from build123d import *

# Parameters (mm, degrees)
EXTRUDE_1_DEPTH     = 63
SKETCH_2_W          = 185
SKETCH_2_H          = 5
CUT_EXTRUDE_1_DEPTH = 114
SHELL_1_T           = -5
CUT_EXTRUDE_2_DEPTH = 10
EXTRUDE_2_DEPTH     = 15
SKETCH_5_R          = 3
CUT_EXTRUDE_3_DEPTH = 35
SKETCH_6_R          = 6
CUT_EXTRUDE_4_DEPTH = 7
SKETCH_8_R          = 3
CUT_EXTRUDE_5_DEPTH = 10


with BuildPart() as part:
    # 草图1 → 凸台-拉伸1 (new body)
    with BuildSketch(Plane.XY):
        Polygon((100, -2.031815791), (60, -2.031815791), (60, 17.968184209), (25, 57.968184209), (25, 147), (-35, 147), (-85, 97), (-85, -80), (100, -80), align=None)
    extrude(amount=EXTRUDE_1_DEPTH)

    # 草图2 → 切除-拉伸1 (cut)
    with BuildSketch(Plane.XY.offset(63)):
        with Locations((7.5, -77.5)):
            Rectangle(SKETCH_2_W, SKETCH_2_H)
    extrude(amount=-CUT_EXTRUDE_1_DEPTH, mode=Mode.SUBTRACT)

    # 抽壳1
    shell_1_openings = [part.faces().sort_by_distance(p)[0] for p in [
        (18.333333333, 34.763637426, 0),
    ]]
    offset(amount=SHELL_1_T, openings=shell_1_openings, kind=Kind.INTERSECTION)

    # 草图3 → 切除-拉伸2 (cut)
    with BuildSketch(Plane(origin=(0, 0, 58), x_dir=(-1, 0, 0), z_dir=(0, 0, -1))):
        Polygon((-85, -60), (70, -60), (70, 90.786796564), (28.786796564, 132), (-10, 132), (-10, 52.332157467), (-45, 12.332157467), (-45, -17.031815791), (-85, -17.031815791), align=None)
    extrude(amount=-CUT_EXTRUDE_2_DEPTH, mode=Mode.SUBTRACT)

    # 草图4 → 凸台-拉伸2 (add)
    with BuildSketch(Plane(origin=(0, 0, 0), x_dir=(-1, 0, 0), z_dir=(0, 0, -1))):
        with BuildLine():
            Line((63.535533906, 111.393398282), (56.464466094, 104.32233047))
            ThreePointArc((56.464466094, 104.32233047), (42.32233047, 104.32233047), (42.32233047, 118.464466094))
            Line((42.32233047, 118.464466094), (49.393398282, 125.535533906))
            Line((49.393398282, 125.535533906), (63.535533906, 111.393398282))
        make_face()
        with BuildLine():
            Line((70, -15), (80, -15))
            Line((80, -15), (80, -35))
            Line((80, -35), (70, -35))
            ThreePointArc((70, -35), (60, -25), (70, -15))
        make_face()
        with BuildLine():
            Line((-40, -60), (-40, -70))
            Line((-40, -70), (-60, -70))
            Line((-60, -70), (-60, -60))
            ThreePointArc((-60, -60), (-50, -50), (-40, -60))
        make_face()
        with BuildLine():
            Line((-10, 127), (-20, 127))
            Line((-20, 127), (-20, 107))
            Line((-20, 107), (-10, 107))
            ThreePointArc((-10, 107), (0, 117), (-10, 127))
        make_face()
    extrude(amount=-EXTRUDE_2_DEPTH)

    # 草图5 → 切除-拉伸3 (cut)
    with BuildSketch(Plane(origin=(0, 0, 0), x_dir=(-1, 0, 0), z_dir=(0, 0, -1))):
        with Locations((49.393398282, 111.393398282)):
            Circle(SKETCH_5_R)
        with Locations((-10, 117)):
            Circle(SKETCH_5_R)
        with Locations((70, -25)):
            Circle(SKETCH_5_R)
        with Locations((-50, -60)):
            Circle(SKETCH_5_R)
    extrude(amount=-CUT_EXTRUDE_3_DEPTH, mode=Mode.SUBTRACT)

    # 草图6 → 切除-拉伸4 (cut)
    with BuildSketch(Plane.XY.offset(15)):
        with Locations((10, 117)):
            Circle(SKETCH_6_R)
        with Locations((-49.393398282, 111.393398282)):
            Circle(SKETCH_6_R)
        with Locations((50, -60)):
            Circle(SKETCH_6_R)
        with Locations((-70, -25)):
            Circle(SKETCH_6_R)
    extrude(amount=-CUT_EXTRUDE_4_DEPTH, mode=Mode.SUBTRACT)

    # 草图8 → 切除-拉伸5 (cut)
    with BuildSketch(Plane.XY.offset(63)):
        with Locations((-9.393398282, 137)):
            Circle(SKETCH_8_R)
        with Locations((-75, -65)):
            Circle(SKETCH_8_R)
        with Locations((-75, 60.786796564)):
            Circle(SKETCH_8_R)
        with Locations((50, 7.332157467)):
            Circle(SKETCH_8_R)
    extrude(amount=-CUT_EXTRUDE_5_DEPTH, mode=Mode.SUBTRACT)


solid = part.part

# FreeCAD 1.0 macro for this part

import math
import FreeCAD as App
import Part
import Sketcher

V = App.Vector
Q = App.Units.Quantity


def faces_at(feature, points):
    """Names of the faces that lie closest to the given points."""
    faces = feature.Shape.Faces
    near = lambda p: min(range(len(faces)), key=lambda i: faces[i].distToShape(Part.Vertex(*p))[0])
    return sorted({f"Face{near(p) + 1}" for p in points})


def add_polygon(sketch, points):
    """Adds a closed chain of lines whose ends are joined by coincident constraints."""
    first, n = sketch.GeometryCount, len(points)
    for a, b in zip(points, points[1:] + points[:1]):
        sketch.addGeometry(Part.LineSegment(App.Vector(*a, 0), App.Vector(*b, 0)), False)
    for i in range(n):
        sketch.addConstraint(Sketcher.Constraint("Coincident", first + i, 2, first + (i + 1) % n, 1))

doc = App.newDocument("Part")
body = doc.addObject("PartDesign::Body", "Body")

sketch1 = doc.addObject("Sketcher::SketchObject", "Sketch")
body.addObject(sketch1)
sketch1.AttachmentSupport = (doc.XY_Plane, [""])
sketch1.MapMode = "FlatFace"
add_polygon(sketch1, [(100, -2), (60, -2), (60, 18), (25, 58), (25, 147), (-35, 147), (-85, 97), (-85, -80), (100, -80)])
sketch1.addConstraint([
    Sketcher.Constraint("Horizontal", 0),
    Sketcher.Constraint("Vertical", 1),
    Sketcher.Constraint("Vertical", 3),
    Sketcher.Constraint("Horizontal", 4),
    Sketcher.Constraint("Vertical", 6),
    Sketcher.Constraint("Horizontal", 7),
    Sketcher.Constraint("Vertical", 8),
    Sketcher.Constraint("DistanceX", 0, 2, 0, 1, 40.0),
    Sketcher.Constraint("DistanceX", 4, 2, 4, 1, 60.0),
    Sketcher.Constraint("DistanceX", 7, 1, 7, 2, 185.0),
    Sketcher.Constraint("DistanceY", 1, 1, 1, 2, 20.0),
    Sketcher.Constraint("DistanceY", 6, 2, 6, 1, 177.0),
    Sketcher.Constraint("Angle", 5, Q("-135 deg")),
    Sketcher.Constraint("DistanceX", -1, 1, 0, 2, 60.0),
    Sketcher.Constraint("DistanceX", -1, 1, 2, 2, 25.0),
    Sketcher.Constraint("DistanceY", -1, 1, 3, 2, 147.0),
    Sketcher.Constraint("DistanceY", 1, 2, 2, 2, 40.0),
    Sketcher.Constraint("DistanceY", 3, 1, 3, 2, 89.031816),
])
pad1 = doc.addObject("PartDesign::Pad", "Pad")
body.addObject(pad1)
pad1.Profile = sketch1
pad1.Length = 63

sketch2 = doc.addObject("Sketcher::SketchObject", "Sketch001")
body.addObject(sketch2)
sketch2.AttachmentSupport = (doc.XY_Plane, [""])
sketch2.MapMode = "FlatFace"
sketch2.AttachmentOffset = App.Placement(V(0, 0, 63), App.Rotation())
add_polygon(sketch2, [(-85, -75), (-85, -80), (100, -80), (100, -75)])
sketch2.addConstraint([
    Sketcher.Constraint("Vertical", 0),
    Sketcher.Constraint("Horizontal", 1),
    Sketcher.Constraint("Vertical", 2),
    Sketcher.Constraint("Horizontal", 3),
    Sketcher.Constraint("DistanceX", 1, 1, 1, 2, 185.0),
    Sketcher.Constraint("DistanceY", 0, 2, 0, 1, 5.0),
    Sketcher.Constraint("DistanceX", 0, 2, -1, 1, 85.0),
    Sketcher.Constraint("DistanceY", 0, 2, -1, 1, 80.0),
])
pocket1 = doc.addObject("PartDesign::Pocket", "Pocket")
body.addObject(pocket1)
pocket1.Profile = sketch2
pocket1.Length = 114
doc.recompute()

thickness = doc.addObject("PartDesign::Thickness", "Thickness")
body.addObject(thickness)
thickness.Base = (pocket1, faces_at(pocket1, [(7.5, 36, 0)]))
thickness.Value = 5
thickness.Reversed = True
thickness.Join = "Intersection"

sketch3 = doc.addObject("Sketcher::SketchObject", "Sketch002")
body.addObject(sketch3)
sketch3.AttachmentSupport = (doc.XY_Plane, [""])
sketch3.MapMode = "FlatFace"
sketch3.AttachmentOffset = App.Placement(V(0, 0, 58), App.Rotation())
add_polygon(sketch3, [(85, -60), (-70, -60), (-70, 91), (-29, 132), (10, 132), (10, 52), (45, 12), (45, -17), (85, -17)])
sketch3.addConstraint([
    Sketcher.Constraint("Horizontal", 0),
    Sketcher.Constraint("Vertical", 1),
    Sketcher.Constraint("Horizontal", 3),
    Sketcher.Constraint("Vertical", 4),
    Sketcher.Constraint("Vertical", 6),
    Sketcher.Constraint("Horizontal", 7),
    Sketcher.Constraint("Vertical", 8),
    Sketcher.Constraint("DistanceX", 0, 2, 0, 1, 155.0),
    Sketcher.Constraint("DistanceX", 7, 1, 7, 2, 40.0),
    Sketcher.Constraint("Angle", 2, Q("45 deg")),
    Sketcher.Constraint("DistanceX", 0, 2, -1, 1, 70.0),
    Sketcher.Constraint("DistanceY", 0, 2, -1, 1, 60.0),
    Sketcher.Constraint("DistanceY", -1, 1, 2, 2, 132.0),
    Sketcher.Constraint("DistanceX", -1, 1, 3, 2, 10.0),
    Sketcher.Constraint("DistanceY", 5, 2, 4, 2, 40.0),
    Sketcher.Constraint("Distance", 2, 58.284271),
    Sketcher.Constraint("DistanceY", 4, 2, 4, 1, 79.667843),
    Sketcher.Constraint("DistanceY", 6, 2, 6, 1, 29.363973),
])
pocket2 = doc.addObject("PartDesign::Pocket", "Pocket001")
body.addObject(pocket2)
pocket2.Profile = sketch3
pocket2.Length = 10
pocket2.Reversed = True

sketch4 = doc.addObject("Sketcher::SketchObject", "Sketch003")
body.addObject(sketch4)
sketch4.AttachmentSupport = (doc.XY_Plane, [""])
sketch4.MapMode = "FlatFace"
sketch4.addGeometry([
    Part.LineSegment(V(-56, 104, 0), V(-64, 111, 0)),
    Part.LineSegment(V(-64, 111, 0), V(-49, 126, 0)),
    Part.LineSegment(V(-49, 126, 0), V(-42, 118, 0)),
    Part.ArcOfCircle(Part.Circle(V(-49, 111, 0), V(0, 0, 1), 10), math.radians(-135), math.radians(45)),
    Part.LineSegment(V(-80, -15, 0), V(-70, -15, 0)),
    Part.ArcOfCircle(Part.Circle(V(-70, -25, 0), V(0, 0, 1), 10), math.radians(-90), math.radians(90)),
    Part.LineSegment(V(-70, -35, 0), V(-80, -35, 0)),
    Part.LineSegment(V(-80, -35, 0), V(-80, -15, 0)),
    Part.LineSegment(V(40, -70, 0), V(40, -60, 0)),
    Part.ArcOfCircle(Part.Circle(V(50, -60, 0), V(0, 0, 1), 10), math.radians(0), math.radians(180)),
    Part.LineSegment(V(60, -60, 0), V(60, -70, 0)),
    Part.LineSegment(V(60, -70, 0), V(40, -70, 0)),
    Part.LineSegment(V(10, 127, 0), V(20, 127, 0)),
    Part.LineSegment(V(20, 127, 0), V(20, 107, 0)),
    Part.LineSegment(V(20, 107, 0), V(10, 107, 0)),
    Part.ArcOfCircle(Part.Circle(V(10, 117, 0), V(0, 0, 1), 10), math.radians(90), math.radians(270)),
], False)
sketch4.addConstraint([
    Sketcher.Constraint("Coincident", 0, 2, 1, 1),
    Sketcher.Constraint("Coincident", 1, 2, 2, 1),
    Sketcher.Constraint("Tangent", 2, 2, 3, 2),
    Sketcher.Constraint("Tangent", 3, 1, 0, 1),
    Sketcher.Constraint("Tangent", 4, 2, 5, 2),
    Sketcher.Constraint("Tangent", 5, 1, 6, 1),
    Sketcher.Constraint("Coincident", 6, 2, 7, 1),
    Sketcher.Constraint("Coincident", 7, 2, 4, 1),
    Sketcher.Constraint("Tangent", 8, 2, 9, 2),
    Sketcher.Constraint("Tangent", 9, 1, 10, 1),
    Sketcher.Constraint("Coincident", 10, 2, 11, 1),
    Sketcher.Constraint("Coincident", 11, 2, 8, 1),
    Sketcher.Constraint("Coincident", 12, 2, 13, 1),
    Sketcher.Constraint("Coincident", 13, 2, 14, 1),
    Sketcher.Constraint("Tangent", 14, 2, 15, 2),
    Sketcher.Constraint("Tangent", 15, 1, 12, 1),
    Sketcher.Constraint("Horizontal", 4),
    Sketcher.Constraint("Horizontal", 6),
    Sketcher.Constraint("Vertical", 7),
    Sketcher.Constraint("Vertical", 8),
    Sketcher.Constraint("Vertical", 10),
    Sketcher.Constraint("Horizontal", 11),
    Sketcher.Constraint("Horizontal", 12),
    Sketcher.Constraint("Vertical", 13),
    Sketcher.Constraint("Horizontal", 14),
    Sketcher.Constraint("Equal", 3, 5),
    Sketcher.Constraint("Equal", 5, 9),
    Sketcher.Constraint("Equal", 9, 15),
    Sketcher.Constraint("Perpendicular", 0, 1),
    Sketcher.Constraint("Perpendicular", 1, 2),
    Sketcher.Constraint("Horizontal", 3, 3, 0, 2),
    Sketcher.Constraint("Vertical", 3, 3, 1, 2),
    Sketcher.Constraint("Equal", 6, 12),
    Sketcher.Constraint("Equal", 14, 8),
    Sketcher.Constraint("Radius", 3, 10.0),
    Sketcher.Constraint("DistanceX", 4, 1, 4, 2, 10.0),
    Sketcher.Constraint("DistanceX", 5, 3, -1, 1, 70.0),
    Sketcher.Constraint("DistanceY", 5, 3, -1, 1, 25.0),
    Sketcher.Constraint("DistanceX", -1, 1, 9, 3, 50.0),
    Sketcher.Constraint("DistanceY", 9, 3, -1, 1, 60.0),
    Sketcher.Constraint("DistanceX", -1, 1, 15, 3, 10.0),
    Sketcher.Constraint("DistanceY", -1, 1, 15, 3, 117.0),
    Sketcher.Constraint("DistanceX", 3, 3, -1, 1, 49.393398),
    Sketcher.Constraint("DistanceY", -1, 1, 3, 3, 111.393398),
])
pad2 = doc.addObject("PartDesign::Pad", "Pad001")
body.addObject(pad2)
pad2.Profile = sketch4
pad2.Length = 15

sketch5 = doc.addObject("Sketcher::SketchObject", "Sketch004")
body.addObject(sketch5)
sketch5.AttachmentSupport = (doc.XY_Plane, [""])
sketch5.MapMode = "FlatFace"
sketch5.addGeometry([
    Part.Circle(V(-49.4, 111.4, 0), V(0, 0, 1), 3),
    Part.Circle(V(10, 117, 0), V(0, 0, 1), 3),
    Part.Circle(V(-70, -25, 0), V(0, 0, 1), 3),
    Part.Circle(V(50, -60, 0), V(0, 0, 1), 3),
], False)
sketch5.addConstraint([
    Sketcher.Constraint("Equal", 0, 1),
    Sketcher.Constraint("Equal", 1, 2),
    Sketcher.Constraint("Equal", 2, 3),
    Sketcher.Constraint("Diameter", 0, 6.0),
    Sketcher.Constraint("DistanceX", -1, 1, 1, 3, 10.0),
    Sketcher.Constraint("DistanceY", -1, 1, 1, 3, 117.0),
    Sketcher.Constraint("DistanceX", 2, 3, -1, 1, 70.0),
    Sketcher.Constraint("DistanceY", 2, 3, -1, 1, 25.0),
    Sketcher.Constraint("DistanceX", -1, 1, 3, 3, 50.0),
    Sketcher.Constraint("DistanceY", 3, 3, -1, 1, 60.0),
    Sketcher.Constraint("DistanceX", 0, 3, -1, 1, 49.393398),
    Sketcher.Constraint("DistanceY", -1, 1, 0, 3, 111.393398),
])
pocket3 = doc.addObject("PartDesign::Pocket", "Pocket002")
body.addObject(pocket3)
pocket3.Profile = sketch5
pocket3.Length = 35
pocket3.Reversed = True

sketch6 = doc.addObject("Sketcher::SketchObject", "Sketch005")
body.addObject(sketch6)
sketch6.AttachmentSupport = (doc.XY_Plane, [""])
sketch6.MapMode = "FlatFace"
sketch6.AttachmentOffset = App.Placement(V(0, 0, 15), App.Rotation())
sketch6.addGeometry([
    Part.Circle(V(10, 117, 0), V(0, 0, 1), 6),
    Part.Circle(V(-49, 111, 0), V(0, 0, 1), 6),
    Part.Circle(V(50, -60, 0), V(0, 0, 1), 6),
    Part.Circle(V(-70, -25, 0), V(0, 0, 1), 6),
], False)
sketch6.addConstraint([
    Sketcher.Constraint("Equal", 0, 1),
    Sketcher.Constraint("Equal", 1, 2),
    Sketcher.Constraint("Equal", 2, 3),
    Sketcher.Constraint("Diameter", 0, 12.0),
    Sketcher.Constraint("DistanceX", -1, 1, 0, 3, 10.0),
    Sketcher.Constraint("DistanceY", -1, 1, 0, 3, 117.0),
    Sketcher.Constraint("DistanceX", -1, 1, 2, 3, 50.0),
    Sketcher.Constraint("DistanceY", 2, 3, -1, 1, 60.0),
    Sketcher.Constraint("DistanceX", 3, 3, -1, 1, 70.0),
    Sketcher.Constraint("DistanceY", 3, 3, -1, 1, 25.0),
    Sketcher.Constraint("DistanceX", 1, 3, -1, 1, 49.393398),
    Sketcher.Constraint("DistanceY", -1, 1, 1, 3, 111.393398),
])
pocket4 = doc.addObject("PartDesign::Pocket", "Pocket003")
body.addObject(pocket4)
pocket4.Profile = sketch6
pocket4.Length = 7

sketch7 = doc.addObject("Sketcher::SketchObject", "Sketch006")
body.addObject(sketch7)
sketch7.AttachmentSupport = (doc.XY_Plane, [""])
sketch7.MapMode = "FlatFace"
sketch7.AttachmentOffset = App.Placement(V(0, 0, 63), App.Rotation())
sketch7.addGeometry([
    Part.Circle(V(-9.4, 137, 0), V(0, 0, 1), 3),
    Part.Circle(V(-75, -65, 0), V(0, 0, 1), 3),
    Part.Circle(V(-75, 60.8, 0), V(0, 0, 1), 3),
    Part.Circle(V(50, 7.3, 0), V(0, 0, 1), 3),
], False)
sketch7.addConstraint([
    Sketcher.Constraint("Equal", 0, 1),
    Sketcher.Constraint("Equal", 1, 2),
    Sketcher.Constraint("Equal", 2, 3),
    Sketcher.Constraint("Vertical", 1, 3, 2, 3),
    Sketcher.Constraint("Diameter", 0, 6.0),
    Sketcher.Constraint("DistanceY", -1, 1, 0, 3, 137.0),
    Sketcher.Constraint("DistanceX", 1, 3, -1, 1, 75.0),
    Sketcher.Constraint("DistanceY", 1, 3, -1, 1, 65.0),
    Sketcher.Constraint("DistanceX", -1, 1, 3, 3, 50.0),
    Sketcher.Constraint("DistanceX", 0, 3, -1, 1, 9.393398),
    Sketcher.Constraint("DistanceY", 3, 3, 2, 3, 53.454639),
    Sketcher.Constraint("DistanceY", -1, 1, 2, 3, 60.786797),
])
pocket5 = doc.addObject("PartDesign::Pocket", "Pocket004")
body.addObject(pocket5)
pocket5.Profile = sketch7
pocket5.Length = 10

doc.recompute()
